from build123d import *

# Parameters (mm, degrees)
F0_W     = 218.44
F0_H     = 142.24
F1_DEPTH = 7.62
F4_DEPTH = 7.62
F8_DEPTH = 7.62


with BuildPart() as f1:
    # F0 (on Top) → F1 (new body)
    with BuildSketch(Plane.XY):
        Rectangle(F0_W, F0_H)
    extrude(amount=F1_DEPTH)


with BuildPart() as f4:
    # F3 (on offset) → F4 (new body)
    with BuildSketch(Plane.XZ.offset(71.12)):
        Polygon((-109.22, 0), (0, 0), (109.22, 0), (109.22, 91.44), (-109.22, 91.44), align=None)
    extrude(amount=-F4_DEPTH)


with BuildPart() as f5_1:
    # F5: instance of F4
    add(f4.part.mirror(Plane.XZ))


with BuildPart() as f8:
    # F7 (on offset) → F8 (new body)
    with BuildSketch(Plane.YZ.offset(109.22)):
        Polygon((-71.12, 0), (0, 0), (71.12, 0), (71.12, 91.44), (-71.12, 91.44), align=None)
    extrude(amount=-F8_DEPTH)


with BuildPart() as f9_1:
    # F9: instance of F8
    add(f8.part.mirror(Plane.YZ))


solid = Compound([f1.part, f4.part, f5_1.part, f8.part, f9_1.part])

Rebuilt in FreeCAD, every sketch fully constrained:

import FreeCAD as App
import Part
import Sketcher
Q = App.Units.Quantity

doc = App.newDocument("Part")
params = doc.addObject("Spreadsheet::Sheet", "Params")
for row, (alias, value) in enumerate([
    ("sketch1_width", "8.6 in"),
    ("sketch1_height", "5.6 in"),
    ("pad1_length", "0.3 in"),
    ("sketch2_width", "8.6 in"),
    ("sketch2_height", "3.6 in"),
    ("pad2_length", "0.3 in"),
    ("sketch3_width", "5.6 in"),
    ("sketch3_height", "3.6 in"),
    ("pad3_length", "0.3 in"),
], start=1):
    params.set(f"A{row}", alias)
    params.set(f"B{row}", "=" + value)
    params.setAlias(f"B{row}", alias)

body = doc.addObject("PartDesign::Body", "Body")

sketch1 = doc.addObject("Sketcher::SketchObject", "Sketch")
body.addObject(sketch1)
sketch1.AttachmentSupport = (doc.XY_Plane, [""])
sketch1.MapMode = "FlatFace"
sketch1.addGeometry([
    Part.LineSegment(App.Vector(-109, 71, 0), App.Vector(-109, -71, 0)),
    Part.LineSegment(App.Vector(-109, -71, 0), App.Vector(109, -71, 0)),
    Part.LineSegment(App.Vector(109, -71, 0), App.Vector(109, 71, 0)),
    Part.LineSegment(App.Vector(109, 71, 0), App.Vector(-109, 71, 0)),
], False)
sketch1.addConstraint([
    Sketcher.Constraint("Coincident", 0, 2, 1, 1),
    Sketcher.Constraint("Coincident", 1, 2, 2, 1),
    Sketcher.Constraint("Coincident", 2, 2, 3, 1),
    Sketcher.Constraint("Coincident", 3, 2, 0, 1),
    Sketcher.Constraint("Vertical", 0),
    Sketcher.Constraint("Horizontal", 1),
    Sketcher.Constraint("Vertical", 2),
    Sketcher.Constraint("Horizontal", 3),
    Sketcher.Constraint("Symmetric", 0, 2, 2, 2, -1, 1),
    Sketcher.Constraint("DistanceX", 1, 1, 1, 2, Q("8.6 in")),
    Sketcher.Constraint("DistanceY", 0, 2, 0, 1, Q("5.6 in")),
])
sketch1.setExpression("Constraints[9]", "Params.sketch1_width")
sketch1.setExpression("Constraints[10]", "Params.sketch1_height")
pad1 = doc.addObject("PartDesign::Pad", "Pad")
body.addObject(pad1)
pad1.Profile = sketch1
pad1.setExpression("Length", "Params.pad1_length")
body2 = doc.addObject("PartDesign::Body", "Body001")

sketch2 = doc.addObject("Sketcher::SketchObject", "Sketch001")
body2.addObject(sketch2)
sketch2.AttachmentSupport = (doc.getObject("XZ_Plane001"), [""])
sketch2.MapMode = "FlatFace"
sketch2.AttachmentOffset = App.Placement(App.Vector(0, 0, 2.8 * 25.4), App.Rotation())
sketch2.addGeometry([
    Part.LineSegment(App.Vector(-109, 0, 0), App.Vector(109, 0, 0)),
    Part.LineSegment(App.Vector(109, 0, 0), App.Vector(109, 91, 0)),
    Part.LineSegment(App.Vector(109, 91, 0), App.Vector(-109, 91, 0)),
    Part.LineSegment(App.Vector(-109, 91, 0), App.Vector(-109, 0, 0)),
], False)
sketch2.addConstraint([
    Sketcher.Constraint("Coincident", 0, 2, 1, 1),
    Sketcher.Constraint("Coincident", 1, 2, 2, 1),
    Sketcher.Constraint("Coincident", 2, 2, 3, 1),
    Sketcher.Constraint("Coincident", 3, 2, 0, 1),
    Sketcher.Constraint("Horizontal", 0),
    Sketcher.Constraint("Vertical", 1),
    Sketcher.Constraint("Horizontal", 2),
    Sketcher.Constraint("Vertical", 3),
    Sketcher.Constraint("Symmetric", 0, 2, 3, 2, -1, 1),
    Sketcher.Constraint("DistanceX", 0, 1, 0, 2, Q("8.6 in")),
    Sketcher.Constraint("DistanceY", 1, 1, 1, 2, Q("3.6 in")),
])
sketch2.setExpression("Constraints[9]", "Params.sketch2_width")
sketch2.setExpression("Constraints[10]", "Params.sketch2_height")
pad2 = doc.addObject("PartDesign::Pad", "Pad001")
body2.addObject(pad2)
pad2.Profile = sketch2
pad2.setExpression("Length", "Params.pad2_length")
pad2.Reversed = True
body3 = doc.addObject("PartDesign::Body", "Body002")
doc.recompute()

mirroring = doc.addObject("Part::Mirroring", "Mirroring")
mirroring.Source = body2
mirroring.Base = App.Vector(0, 0, 0)
mirroring.Normal = App.Vector(0, -1, 0)
body3.BaseFeature = mirroring
doc.recompute()
body4 = doc.addObject("PartDesign::Body", "Body003")

sketch3 = doc.addObject("Sketcher::SketchObject", "Sketch002")
body4.addObject(sketch3)
sketch3.AttachmentSupport = (doc.getObject("YZ_Plane003"), [""])
sketch3.MapMode = "FlatFace"
sketch3.AttachmentOffset = App.Placement(App.Vector(0, 0, 4.3 * 25.4), App.Rotation())
sketch3.addGeometry([
    Part.LineSegment(App.Vector(-71, 0, 0), App.Vector(71, 0, 0)),
    Part.LineSegment(App.Vector(71, 0, 0), App.Vector(71, 91, 0)),
    Part.LineSegment(App.Vector(71, 91, 0), App.Vector(-71, 91, 0)),
    Part.LineSegment(App.Vector(-71, 91, 0), App.Vector(-71, 0, 0)),
], False)
sketch3.addConstraint([
    Sketcher.Constraint("Coincident", 0, 2, 1, 1),
    Sketcher.Constraint("Coincident", 1, 2, 2, 1),
    Sketcher.Constraint("Coincident", 2, 2, 3, 1),
    Sketcher.Constraint("Coincident", 3, 2, 0, 1),
    Sketcher.Constraint("Horizontal", 0),
    Sketcher.Constraint("Vertical", 1),
    Sketcher.Constraint("Horizontal", 2),
    Sketcher.Constraint("Vertical", 3),
    Sketcher.Constraint("Symmetric", 0, 2, 3, 2, -1, 1),
    Sketcher.Constraint("DistanceX", 0, 1, 0, 2, Q("5.6 in")),
    Sketcher.Constraint("DistanceY", 1, 1, 1, 2, Q("3.6 in")),
])
sketch3.setExpression("Constraints[9]", "Params.sketch3_width")
sketch3.setExpression("Constraints[10]", "Params.sketch3_height")
pad3 = doc.addObject("PartDesign::Pad", "Pad002")
body4.addObject(pad3)
pad3.Profile = sketch3
pad3.setExpression("Length", "Params.pad3_length")
pad3.Reversed = True
body5 = doc.addObject("PartDesign::Body", "Body004")
doc.recompute()

mirroring2 = doc.addObject("Part::Mirroring", "Mirroring001")
mirroring2.Source = body4
mirroring2.Base = App.Vector(0, 0, 0)
mirroring2.Normal = App.Vector(1, 0, 0)
body5.BaseFeature = mirroring2
doc.recompute()
mirroring.Visibility = False
mirroring2.Visibility = False

doc.recompute()
